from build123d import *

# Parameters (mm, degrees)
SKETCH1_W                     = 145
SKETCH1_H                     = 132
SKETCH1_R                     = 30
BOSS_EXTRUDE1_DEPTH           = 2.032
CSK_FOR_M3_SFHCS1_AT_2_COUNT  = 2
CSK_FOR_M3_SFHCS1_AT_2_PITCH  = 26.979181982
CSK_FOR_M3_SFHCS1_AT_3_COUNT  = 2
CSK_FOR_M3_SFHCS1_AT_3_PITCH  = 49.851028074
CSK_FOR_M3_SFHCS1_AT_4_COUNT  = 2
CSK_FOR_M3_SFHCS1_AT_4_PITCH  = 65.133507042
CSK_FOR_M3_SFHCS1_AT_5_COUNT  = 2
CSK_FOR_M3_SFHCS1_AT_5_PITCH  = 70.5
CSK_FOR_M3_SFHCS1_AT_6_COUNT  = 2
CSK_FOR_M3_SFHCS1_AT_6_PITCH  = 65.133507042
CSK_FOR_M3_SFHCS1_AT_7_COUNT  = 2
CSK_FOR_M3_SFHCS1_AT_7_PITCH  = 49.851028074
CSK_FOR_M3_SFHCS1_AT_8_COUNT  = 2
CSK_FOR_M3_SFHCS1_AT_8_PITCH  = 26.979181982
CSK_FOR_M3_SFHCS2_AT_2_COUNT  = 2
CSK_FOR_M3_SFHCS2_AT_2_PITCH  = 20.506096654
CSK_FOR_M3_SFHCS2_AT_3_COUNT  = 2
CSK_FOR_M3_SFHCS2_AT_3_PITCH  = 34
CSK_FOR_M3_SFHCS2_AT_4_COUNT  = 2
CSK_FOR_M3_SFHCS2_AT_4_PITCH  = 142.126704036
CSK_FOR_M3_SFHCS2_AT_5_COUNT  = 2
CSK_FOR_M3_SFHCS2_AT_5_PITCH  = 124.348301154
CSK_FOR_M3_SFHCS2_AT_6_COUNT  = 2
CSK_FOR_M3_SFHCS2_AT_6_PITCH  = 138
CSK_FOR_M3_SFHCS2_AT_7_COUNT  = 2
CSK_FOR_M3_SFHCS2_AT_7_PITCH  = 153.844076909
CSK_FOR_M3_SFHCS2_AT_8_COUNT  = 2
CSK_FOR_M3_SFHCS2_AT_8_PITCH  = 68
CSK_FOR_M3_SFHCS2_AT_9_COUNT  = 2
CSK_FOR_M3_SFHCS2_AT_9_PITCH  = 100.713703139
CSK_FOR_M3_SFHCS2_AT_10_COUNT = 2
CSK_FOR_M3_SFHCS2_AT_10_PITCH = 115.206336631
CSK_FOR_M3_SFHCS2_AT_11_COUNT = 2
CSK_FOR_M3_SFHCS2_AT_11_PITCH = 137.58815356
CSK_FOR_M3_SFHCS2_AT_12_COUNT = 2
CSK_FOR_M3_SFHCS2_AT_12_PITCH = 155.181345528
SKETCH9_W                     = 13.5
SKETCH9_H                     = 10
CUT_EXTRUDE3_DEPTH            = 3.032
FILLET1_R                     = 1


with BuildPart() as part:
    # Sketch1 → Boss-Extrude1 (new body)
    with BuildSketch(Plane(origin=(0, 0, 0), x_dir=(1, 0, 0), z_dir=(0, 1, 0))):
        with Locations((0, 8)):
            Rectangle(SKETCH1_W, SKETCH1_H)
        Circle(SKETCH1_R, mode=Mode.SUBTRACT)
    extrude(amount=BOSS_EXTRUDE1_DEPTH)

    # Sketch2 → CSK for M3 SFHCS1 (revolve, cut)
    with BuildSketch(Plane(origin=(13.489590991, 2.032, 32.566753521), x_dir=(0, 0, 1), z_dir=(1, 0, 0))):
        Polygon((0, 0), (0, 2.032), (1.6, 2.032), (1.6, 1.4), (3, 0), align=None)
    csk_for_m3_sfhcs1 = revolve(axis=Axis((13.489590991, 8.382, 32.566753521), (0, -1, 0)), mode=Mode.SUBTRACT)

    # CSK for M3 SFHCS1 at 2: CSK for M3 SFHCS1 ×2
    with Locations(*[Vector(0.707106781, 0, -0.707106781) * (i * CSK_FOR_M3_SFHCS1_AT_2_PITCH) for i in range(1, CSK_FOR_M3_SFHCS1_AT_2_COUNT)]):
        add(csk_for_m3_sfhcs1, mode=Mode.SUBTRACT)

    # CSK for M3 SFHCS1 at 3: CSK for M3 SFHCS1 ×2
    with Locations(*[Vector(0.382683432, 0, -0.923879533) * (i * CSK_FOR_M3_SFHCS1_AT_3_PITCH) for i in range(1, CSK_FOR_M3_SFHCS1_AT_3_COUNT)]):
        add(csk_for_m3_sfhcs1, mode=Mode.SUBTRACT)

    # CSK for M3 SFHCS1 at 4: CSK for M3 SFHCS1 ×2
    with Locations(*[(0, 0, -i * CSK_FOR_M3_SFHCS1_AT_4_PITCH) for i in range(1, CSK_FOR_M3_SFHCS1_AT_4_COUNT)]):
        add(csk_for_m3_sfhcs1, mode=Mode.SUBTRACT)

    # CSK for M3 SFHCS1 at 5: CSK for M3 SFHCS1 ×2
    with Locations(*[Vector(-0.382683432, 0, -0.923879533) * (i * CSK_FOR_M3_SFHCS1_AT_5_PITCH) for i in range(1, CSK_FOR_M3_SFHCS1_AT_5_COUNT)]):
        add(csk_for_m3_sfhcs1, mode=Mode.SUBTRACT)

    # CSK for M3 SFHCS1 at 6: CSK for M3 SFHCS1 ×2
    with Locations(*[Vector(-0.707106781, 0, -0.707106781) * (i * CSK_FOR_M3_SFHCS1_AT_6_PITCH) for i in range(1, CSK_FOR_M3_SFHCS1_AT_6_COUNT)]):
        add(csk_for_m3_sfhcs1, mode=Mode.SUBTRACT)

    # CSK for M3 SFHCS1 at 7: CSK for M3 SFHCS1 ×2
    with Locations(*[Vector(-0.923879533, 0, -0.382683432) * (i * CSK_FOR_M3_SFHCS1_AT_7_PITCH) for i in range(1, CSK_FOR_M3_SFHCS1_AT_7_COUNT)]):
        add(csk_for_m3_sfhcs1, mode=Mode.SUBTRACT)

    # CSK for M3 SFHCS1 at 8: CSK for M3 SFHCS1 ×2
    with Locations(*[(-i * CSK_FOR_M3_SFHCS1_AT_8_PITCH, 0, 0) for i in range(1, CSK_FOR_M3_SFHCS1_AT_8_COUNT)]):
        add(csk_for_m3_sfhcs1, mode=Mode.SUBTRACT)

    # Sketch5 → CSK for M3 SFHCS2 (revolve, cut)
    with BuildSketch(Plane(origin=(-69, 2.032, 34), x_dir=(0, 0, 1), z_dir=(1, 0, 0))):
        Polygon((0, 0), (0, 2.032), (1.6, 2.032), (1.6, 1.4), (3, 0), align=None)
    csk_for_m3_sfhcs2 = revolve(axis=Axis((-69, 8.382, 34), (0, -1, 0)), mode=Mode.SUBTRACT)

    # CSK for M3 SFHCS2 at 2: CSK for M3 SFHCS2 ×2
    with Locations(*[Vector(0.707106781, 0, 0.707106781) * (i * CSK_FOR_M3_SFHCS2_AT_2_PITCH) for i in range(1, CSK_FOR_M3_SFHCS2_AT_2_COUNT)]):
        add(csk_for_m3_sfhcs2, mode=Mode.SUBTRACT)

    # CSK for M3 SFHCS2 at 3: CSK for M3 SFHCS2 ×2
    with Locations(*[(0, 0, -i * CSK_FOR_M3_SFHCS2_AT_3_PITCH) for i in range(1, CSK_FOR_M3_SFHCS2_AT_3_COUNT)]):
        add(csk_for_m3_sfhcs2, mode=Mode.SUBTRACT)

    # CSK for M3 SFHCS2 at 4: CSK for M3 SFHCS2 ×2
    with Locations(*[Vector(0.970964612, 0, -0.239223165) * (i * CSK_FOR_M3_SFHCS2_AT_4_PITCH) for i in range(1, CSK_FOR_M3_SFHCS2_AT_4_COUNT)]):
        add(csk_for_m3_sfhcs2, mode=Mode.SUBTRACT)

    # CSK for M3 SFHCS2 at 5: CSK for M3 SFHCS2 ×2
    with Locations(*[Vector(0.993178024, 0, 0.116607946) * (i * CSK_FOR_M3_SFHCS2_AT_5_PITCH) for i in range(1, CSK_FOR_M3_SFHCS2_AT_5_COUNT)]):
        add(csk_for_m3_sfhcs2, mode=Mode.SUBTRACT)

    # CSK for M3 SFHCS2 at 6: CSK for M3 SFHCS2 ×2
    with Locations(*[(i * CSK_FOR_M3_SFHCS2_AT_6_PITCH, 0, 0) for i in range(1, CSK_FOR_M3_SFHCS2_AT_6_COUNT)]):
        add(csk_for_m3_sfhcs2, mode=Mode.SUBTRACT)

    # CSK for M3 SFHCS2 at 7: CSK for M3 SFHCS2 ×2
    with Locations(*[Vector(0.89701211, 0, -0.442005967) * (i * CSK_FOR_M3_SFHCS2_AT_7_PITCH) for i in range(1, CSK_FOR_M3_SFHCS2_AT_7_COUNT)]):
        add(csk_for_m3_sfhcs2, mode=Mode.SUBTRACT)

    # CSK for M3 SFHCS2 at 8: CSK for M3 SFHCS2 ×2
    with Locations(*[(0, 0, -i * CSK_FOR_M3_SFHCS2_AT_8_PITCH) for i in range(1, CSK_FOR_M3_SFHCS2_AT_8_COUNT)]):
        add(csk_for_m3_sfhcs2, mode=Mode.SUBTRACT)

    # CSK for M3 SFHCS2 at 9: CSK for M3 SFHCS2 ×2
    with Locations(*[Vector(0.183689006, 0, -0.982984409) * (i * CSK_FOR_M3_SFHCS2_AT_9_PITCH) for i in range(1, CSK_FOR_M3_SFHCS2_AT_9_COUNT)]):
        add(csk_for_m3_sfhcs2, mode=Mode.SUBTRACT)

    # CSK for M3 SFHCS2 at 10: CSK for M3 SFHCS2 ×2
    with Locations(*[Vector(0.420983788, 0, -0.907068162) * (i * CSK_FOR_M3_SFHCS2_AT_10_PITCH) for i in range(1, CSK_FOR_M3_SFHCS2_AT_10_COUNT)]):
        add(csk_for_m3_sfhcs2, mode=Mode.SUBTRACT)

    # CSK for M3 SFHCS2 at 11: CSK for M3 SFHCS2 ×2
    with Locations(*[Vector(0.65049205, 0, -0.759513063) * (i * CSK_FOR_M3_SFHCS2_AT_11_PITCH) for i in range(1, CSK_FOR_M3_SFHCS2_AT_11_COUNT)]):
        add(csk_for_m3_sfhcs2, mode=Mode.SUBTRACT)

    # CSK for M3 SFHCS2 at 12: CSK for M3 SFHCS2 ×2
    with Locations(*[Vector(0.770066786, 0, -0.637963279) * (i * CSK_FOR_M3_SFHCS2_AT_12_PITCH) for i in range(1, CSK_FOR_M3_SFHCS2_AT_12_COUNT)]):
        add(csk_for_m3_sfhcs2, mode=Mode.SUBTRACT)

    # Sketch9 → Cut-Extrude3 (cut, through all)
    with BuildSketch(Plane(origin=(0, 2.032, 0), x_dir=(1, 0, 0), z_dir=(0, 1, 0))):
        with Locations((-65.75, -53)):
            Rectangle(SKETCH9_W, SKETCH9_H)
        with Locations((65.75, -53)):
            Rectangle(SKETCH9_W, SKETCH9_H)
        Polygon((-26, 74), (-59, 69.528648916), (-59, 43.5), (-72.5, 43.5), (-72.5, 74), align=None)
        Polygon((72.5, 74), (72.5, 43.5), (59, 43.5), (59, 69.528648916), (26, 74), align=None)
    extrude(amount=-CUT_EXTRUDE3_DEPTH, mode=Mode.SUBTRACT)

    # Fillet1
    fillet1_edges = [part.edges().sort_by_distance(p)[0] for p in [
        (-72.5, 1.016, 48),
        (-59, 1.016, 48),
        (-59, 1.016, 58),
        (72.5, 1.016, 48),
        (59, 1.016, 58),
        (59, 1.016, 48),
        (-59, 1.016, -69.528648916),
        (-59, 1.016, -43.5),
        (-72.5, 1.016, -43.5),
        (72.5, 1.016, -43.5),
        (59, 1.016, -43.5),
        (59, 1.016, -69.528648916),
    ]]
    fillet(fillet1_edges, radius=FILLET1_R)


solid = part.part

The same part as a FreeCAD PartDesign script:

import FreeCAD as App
import Part
import Sketcher
Q = App.Units.Quantity


def edges_at(feature, points):
    """Names of the edges that pass closest to the given points."""
    edges = feature.Shape.Edges
    near = lambda p: min(range(len(edges)), key=lambda i: edges[i].distToShape(Part.Vertex(*p))[0])
    return sorted({f"Edge{near(p) + 1}" for p in points})


def add_polygon(sketch, points):
    """Adds a closed chain of lines whose ends are joined by coincident constraints."""
    first, n = sketch.GeometryCount, len(points)
    for a, b in zip(points, points[1:] + points[:1]):
        sketch.addGeometry(Part.LineSegment(App.Vector(*a, 0), App.Vector(*b, 0)), False)
    for i in range(n):
        sketch.addConstraint(Sketcher.Constraint("Coincident", first + i, 2, first + (i + 1) % n, 1))

doc = App.newDocument("Part")
body = doc.addObject("PartDesign::Body", "Body")

# Sketch on XZ plane
sketch1 = doc.addObject("Sketcher::SketchObject", "Sketch")
body.addObject(sketch1)
sketch1.AttachmentSupport = (doc.XZ_Plane, [""])
sketch1.MapMode = "FlatFace"
add_polygon(sketch1, [(-72, -74), (-72, 58), (72, 58), (72, -74)])  # lines 0-3
sketch1.addGeometry(Part.Circle(App.Vector(0, 0, 0), App.Vector(0, 0, 1), 30), False)  # 4
sketch1.addConstraint([
    Sketcher.Constraint("Vertical", 0),
    Sketcher.Constraint("Horizontal", 1),
    Sketcher.Constraint("Vertical", 2),
    Sketcher.Constraint("Horizontal", 3),
    Sketcher.Constraint("Coincident", 4, 3, -1, 1),
    Sketcher.Constraint("Diameter", 4, 60.0),
    Sketcher.Constraint("DistanceX", 1, 1, 1, 2, 145.0),
    Sketcher.Constraint("DistanceY", 0, 1, 0, 2, 132.0),
    Sketcher.Constraint("DistanceY", -1, 1, 0, 2, 58.0),
    Sketcher.Constraint("DistanceX", 0, 2, -1, 1, 72.5),
])
pad1 = doc.addObject("PartDesign::Pad", "Pad")
body.addObject(pad1)
pad1.Profile = sketch1
pad1.Length = 2.032
pad1.Reversed = True

# Sketch on YZ plane
sketch2 = doc.addObject("Sketcher::SketchObject", "Sketch001")
body.addObject(sketch2)
sketch2.AttachmentSupport = (doc.YZ_Plane, [""])
sketch2.MapMode = "FlatFace"
sketch2.AttachmentOffset = App.Placement(App.Vector(0, 0, 13.489591), App.Rotation())
add_polygon(sketch2, [(0, 32.6), (2, 32.6), (2, 35.6), (0.6, 34.2), (0, 34.2)])  # lines 0-4
sketch2.addGeometry(Part.LineSegment(App.Vector(2, 32.6, 0), App.Vector(0, 32.6, 0)), True)  # axis
sketch2.addConstraint([
    Sketcher.Constraint("Horizontal", 0),
    Sketcher.Constraint("Vertical", 1),
    Sketcher.Constraint("Horizontal", 3),
    Sketcher.Constraint("Vertical", 4),
    Sketcher.Constraint("Horizontal", 5),
    Sketcher.Constraint("Coincident", 5, 1, 0, 2),
    Sketcher.Constraint("PointOnObject", 3, 2, -2),
    Sketcher.Constraint("PointOnObject", 5, 2, -2),
    Sketcher.Constraint("DistanceY", 1, 1, 1, 2, 3.0),
    Sketcher.Constraint("Angle", 2, Q("-135 deg")),
    Sketcher.Constraint("DistanceY", 4, 2, 4, 1, 1.6),
    Sketcher.Constraint("DistanceX", 0, 1, 0, 2, 2.032),
    Sketcher.Constraint("DistanceY", -1, 1, 0, 2, 32.566754),
])
groove = doc.addObject("PartDesign::Groove", "Groove")
body.addObject(groove)
groove.Profile = sketch2
groove.ReferenceAxis = (sketch2, ["Axis0"])
groove.Angle = 360
doc.recompute()

datumline = doc.addObject("PartDesign::Line", "DatumLine")
body.addObject(datumline)
datumline.Placement = App.Placement(App.Vector(0, 0, 0), App.Rotation(App.Vector(0, 0, 1), App.Vector(0.707106781, 0, -0.707106781)))
linearpattern = doc.addObject("PartDesign::LinearPattern", "LinearPattern")
body.addObject(linearpattern)
linearpattern.Originals = [groove]
linearpattern.Direction = (datumline, [""])
linearpattern.Mode = "offset"
linearpattern.Offset = 26.979182
linearpattern.Occurrences = 2
body.Tip = linearpattern
doc.recompute()

datumline2 = doc.addObject("PartDesign::Line", "DatumLine001")
body.addObject(datumline2)
datumline2.Placement = App.Placement(App.Vector(0, 0, 0), App.Rotation(App.Vector(0, 0, 1), App.Vector(0.382683432, 0, -0.923879533)))
linearpattern2 = doc.addObject("PartDesign::LinearPattern", "LinearPattern001")
body.addObject(linearpattern2)
linearpattern2.Originals = [groove]
linearpattern2.Direction = (datumline2, [""])
linearpattern2.Mode = "offset"
linearpattern2.Offset = 49.851028
linearpattern2.Occurrences = 2
body.Tip = linearpattern2
doc.recompute()

linearpattern3 = doc.addObject("PartDesign::LinearPattern", "LinearPattern002")
body.addObject(linearpattern3)
linearpattern3.Originals = [groove]
linearpattern3.Direction = (doc.Z_Axis, [""])
linearpattern3.Mode = "offset"
linearpattern3.Offset = 65.133507
linearpattern3.Occurrences = 2
linearpattern3.Reversed = True
body.Tip = linearpattern3
doc.recompute()

datumline3 = doc.addObject("PartDesign::Line", "DatumLine002")
body.addObject(datumline3)
datumline3.Placement = App.Placement(App.Vector(0, 0, 0), App.Rotation(App.Vector(0, 0, 1), App.Vector(-0.382683432, 0, -0.923879533)))
linearpattern4 = doc.addObject("PartDesign::LinearPattern", "LinearPattern003")
body.addObject(linearpattern4)
linearpattern4.Originals = [groove]
linearpattern4.Direction = (datumline3, [""])
linearpattern4.Mode = "offset"
linearpattern4.Offset = 70.5
linearpattern4.Occurrences = 2
body.Tip = linearpattern4
doc.recompute()

datumline4 = doc.addObject("PartDesign::Line", "DatumLine003")
body.addObject(datumline4)
datumline4.Placement = App.Placement(App.Vector(0, 0, 0), App.Rotation(App.Vector(0, 0, 1), App.Vector(-0.707106781, 0, -0.707106781)))
linearpattern5 = doc.addObject("PartDesign::LinearPattern", "LinearPattern004")
body.addObject(linearpattern5)
linearpattern5.Originals = [groove]
linearpattern5.Direction = (datumline4, [""])
linearpattern5.Mode = "offset"
linearpattern5.Offset = 65.133507
linearpattern5.Occurrences = 2
body.Tip = linearpattern5
doc.recompute()

datumline5 = doc.addObject("PartDesign::Line", "DatumLine004")
body.addObject(datumline5)
datumline5.Placement = App.Placement(App.Vector(0, 0, 0), App.Rotation(App.Vector(0, 0, 1), App.Vector(-0.923879533, 0, -0.382683432)))
linearpattern6 = doc.addObject("PartDesign::LinearPattern", "LinearPattern005")
body.addObject(linearpattern6)
linearpattern6.Originals = [groove]
linearpattern6.Direction = (datumline5, [""])
linearpattern6.Mode = "offset"
linearpattern6.Offset = 49.851028
linearpattern6.Occurrences = 2
body.Tip = linearpattern6
doc.recompute()

linearpattern7 = doc.addObject("PartDesign::LinearPattern", "LinearPattern006")
body.addObject(linearpattern7)
linearpattern7.Originals = [groove]
linearpattern7.Direction = (doc.X_Axis, [""])
linearpattern7.Mode = "offset"
linearpattern7.Offset = 26.979182
linearpattern7.Occurrences = 2
linearpattern7.Reversed = True
body.Tip = linearpattern7

# Sketch on YZ plane
sketch3 = doc.addObject("Sketcher::SketchObject", "Sketch002")
body.addObject(sketch3)
sketch3.AttachmentSupport = (doc.YZ_Plane, [""])
sketch3.MapMode = "FlatFace"
sketch3.AttachmentOffset = App.Placement(App.Vector(0, 0, -69), App.Rotation())
add_polygon(sketch3, [(0, 34), (2, 34), (2, 37), (0.6, 35.6), (0, 35.6)])  # lines 0-4
sketch3.addGeometry(Part.LineSegment(App.Vector(2, 34, 0), App.Vector(0, 34, 0)), True)  # axis
sketch3.addConstraint([
    Sketcher.Constraint("Horizontal", 0),
    Sketcher.Constraint("Vertical", 1),
    Sketcher.Constraint("Horizontal", 3),
    Sketcher.Constraint("Vertical", 4),
    Sketcher.Constraint("Horizontal", 5),
    Sketcher.Constraint("Coincident", 5, 1, 0, 2),
    Sketcher.Constraint("PointOnObject", 3, 2, -2),
    Sketcher.Constraint("PointOnObject", 5, 2, -2),
    Sketcher.Constraint("DistanceY", 1, 1, 1, 2, 3.0),
    Sketcher.Constraint("Angle", 2, Q("-135 deg")),
    Sketcher.Constraint("DistanceY", 4, 2, 4, 1, 1.6),
    Sketcher.Constraint("DistanceY", -1, 1, 0, 2, 34.0),
    Sketcher.Constraint("DistanceX", 0, 1, 0, 2, 2.032),
])
groove2 = doc.addObject("PartDesign::Groove", "Groove001")
body.addObject(groove2)
groove2.Profile = sketch3
groove2.ReferenceAxis = (sketch3, ["Axis0"])
groove2.Angle = 360
doc.recompute()

datumline6 = doc.addObject("PartDesign::Line", "DatumLine005")
body.addObject(datumline6)
datumline6.Placement = App.Placement(App.Vector(0, 0, 0), App.Rotation(App.Vector(0, 0, 1), App.Vector(0.707106781, 0, 0.707106781)))
linearpattern8 = doc.addObject("PartDesign::LinearPattern", "LinearPattern007")
body.addObject(linearpattern8)
linearpattern8.Originals = [groove2]
linearpattern8.Direction = (datumline6, [""])
linearpattern8.Mode = "offset"
linearpattern8.Offset = 20.506097
linearpattern8.Occurrences = 2
body.Tip = linearpattern8
doc.recompute()

linearpattern9 = doc.addObject("PartDesign::LinearPattern", "LinearPattern008")
body.addObject(linearpattern9)
linearpattern9.Originals = [groove2]
linearpattern9.Direction = (doc.Z_Axis, [""])
linearpattern9.Mode = "offset"
linearpattern9.Offset = 34
linearpattern9.Occurrences = 2
linearpattern9.Reversed = True
body.Tip = linearpattern9
doc.recompute()

datumline7 = doc.addObject("PartDesign::Line", "DatumLine006")
body.addObject(datumline7)
datumline7.Placement = App.Placement(App.Vector(0, 0, 0), App.Rotation(App.Vector(0, 0, 1), App.Vector(0.970964612, 0, -0.239223165)))
linearpattern10 = doc.addObject("PartDesign::LinearPattern", "LinearPattern009")
body.addObject(linearpattern10)
linearpattern10.Originals = [groove2]
linearpattern10.Direction = (datumline7, [""])
linearpattern10.Mode = "offset"
linearpattern10.Offset = 142.126704
linearpattern10.Occurrences = 2
body.Tip = linearpattern10
doc.recompute()

datumline8 = doc.addObject("PartDesign::Line", "DatumLine007")
body.addObject(datumline8)
datumline8.Placement = App.Placement(App.Vector(0, 0, 0), App.Rotation(App.Vector(0, 0, 1), App.Vector(0.993178024, 0, 0.116607946)))
linearpattern11 = doc.addObject("PartDesign::LinearPattern", "LinearPattern010")
body.addObject(linearpattern11)
linearpattern11.Originals = [groove2]
linearpattern11.Direction = (datumline8, [""])
linearpattern11.Mode = "offset"
linearpattern11.Offset = 124.348301
linearpattern11.Occurrences = 2
body.Tip = linearpattern11
doc.recompute()

linearpattern12 = doc.addObject("PartDesign::LinearPattern", "LinearPattern011")
body.addObject(linearpattern12)
linearpattern12.Originals = [groove2]
linearpattern12.Direction = (doc.X_Axis, [""])
linearpattern12.Mode = "offset"
linearpattern12.Offset = 138
linearpattern12.Occurrences = 2
body.Tip = linearpattern12
doc.recompute()

datumline9 = doc.addObject("PartDesign::Line", "DatumLine008")
body.addObject(datumline9)
datumline9.Placement = App.Placement(App.Vector(0, 0, 0), App.Rotation(App.Vector(0, 0, 1), App.Vector(0.89701211, 0, -0.442005967)))
linearpattern13 = doc.addObject("PartDesign::LinearPattern", "LinearPattern012")
body.addObject(linearpattern13)
linearpattern13.Originals = [groove2]
linearpattern13.Direction = (datumline9, [""])
linearpattern13.Mode = "offset"
linearpattern13.Offset = 153.844077
linearpattern13.Occurrences = 2
body.Tip = linearpattern13
doc.recompute()

linearpattern14 = doc.addObject("PartDesign::LinearPattern", "LinearPattern013")
body.addObject(linearpattern14)
linearpattern14.Originals = [groove2]
linearpattern14.Direction = (doc.Z_Axis, [""])
linearpattern14.Mode = "offset"
linearpattern14.Offset = 68
linearpattern14.Occurrences = 2
linearpattern14.Reversed = True
body.Tip = linearpattern14
doc.recompute()

datumline10 = doc.addObject("PartDesign::Line", "DatumLine009")
body.addObject(datumline10)
datumline10.Placement = App.Placement(App.Vector(0, 0, 0), App.Rotation(App.Vector(0, 0, 1), App.Vector(0.183689006, 0, -0.982984409)))
linearpattern15 = doc.addObject("PartDesign::LinearPattern", "LinearPattern014")
body.addObject(linearpattern15)
linearpattern15.Originals = [groove2]
linearpattern15.Direction = (datumline10, [""])
linearpattern15.Mode = "offset"
linearpattern15.Offset = 100.713703
linearpattern15.Occurrences = 2
body.Tip = linearpattern15
doc.recompute()

datumline11 = doc.addObject("PartDesign::Line", "DatumLine010")
body.addObject(datumline11)
datumline11.Placement = App.Placement(App.Vector(0, 0, 0), App.Rotation(App.Vector(0, 0, 1), App.Vector(0.420983788, 0, -0.907068162)))
linearpattern16 = doc.addObject("PartDesign::LinearPattern", "LinearPattern015")
body.addObject(linearpattern16)
linearpattern16.Originals = [groove2]
linearpattern16.Direction = (datumline11, [""])
linearpattern16.Mode = "offset"
linearpattern16.Offset = 115.206337
linearpattern16.Occurrences = 2
body.Tip = linearpattern16
doc.recompute()

datumline12 = doc.addObject("PartDesign::Line", "DatumLine011")
body.addObject(datumline12)
datumline12.Placement = App.Placement(App.Vector(0, 0, 0), App.Rotation(App.Vector(0, 0, 1), App.Vector(0.65049205, 0, -0.759513063)))
linearpattern17 = doc.addObject("PartDesign::LinearPattern", "LinearPattern016")
body.addObject(linearpattern17)
linearpattern17.Originals = [groove2]
linearpattern17.Direction = (datumline12, [""])
linearpattern17.Mode = "offset"
linearpattern17.Offset = 137.588154
linearpattern17.Occurrences = 2
body.Tip = linearpattern17
doc.recompute()

datumline13 = doc.addObject("PartDesign::Line", "DatumLine012")
body.addObject(datumline13)
datumline13.Placement = App.Placement(App.Vector(0, 0, 0), App.Rotation(App.Vector(0, 0, 1), App.Vector(0.770066786, 0, -0.637963279)))
linearpattern18 = doc.addObject("PartDesign::LinearPattern", "LinearPattern017")
body.addObject(linearpattern18)
linearpattern18.Originals = [groove2]
linearpattern18.Direction = (datumline13, [""])
linearpattern18.Mode = "offset"
linearpattern18.Offset = 155.181346
linearpattern18.Occurrences = 2
body.Tip = linearpattern18

# Sketch on XZ plane
sketch4 = doc.addObject("Sketcher::SketchObject", "Sketch003")
body.addObject(sketch4)
sketch4.AttachmentSupport = (doc.XZ_Plane, [""])
sketch4.MapMode = "FlatFace"
sketch4.AttachmentOffset = App.Placement(App.Vector(0, 0, -2.032), App.Rotation())
add_polygon(sketch4, [(-72, 48), (-72, 58), (-59, 58), (-59, 48)])  # lines 0-3
add_polygon(sketch4, [(59, 48), (59, 58), (72, 58), (72, 48)])  # lines 4-7
add_polygon(sketch4, [(-59, -70), (-26, -74), (-72, -74), (-72, -44), (-59, -44)])  # lines 8-12
add_polygon(sketch4, [(72, -44), (72, -74), (26, -74), (59, -70), (59, -44)])  # lines 13-17
sketch4.addConstraint([
    Sketcher.Constraint("Vertical", 0),
    Sketcher.Constraint("Horizontal", 1),
    Sketcher.Constraint("Vertical", 2),
    Sketcher.Constraint("Horizontal", 3),
    Sketcher.Constraint("Vertical", 4),
    Sketcher.Constraint("Horizontal", 5),
    Sketcher.Constraint("Vertical", 6),
    Sketcher.Constraint("Horizontal", 7),
    Sketcher.Constraint("Horizontal", 9),
    Sketcher.Constraint("Vertical", 10),
    Sketcher.Constraint("Horizontal", 11),
    Sketcher.Constraint("Vertical", 12),
    Sketcher.Constraint("Vertical", 13),
    Sketcher.Constraint("Horizontal", 14),
    Sketcher.Constraint("Vertical", 16),
    Sketcher.Constraint("Horizontal", 17),
    Sketcher.Constraint("Symmetric", 1, 2, 4, 2, -2),
    Sketcher.Constraint("Symmetric", 3, 2, 6, 2, -2),
    Sketcher.Constraint("Symmetric", 9, 2, 13, 2, -2),
    Sketcher.Constraint("Symmetric", 12, 2, 15, 2, -2),
    Sketcher.Constraint("Horizontal", 11, 2, 16, 2),
    Sketcher.Constraint("Vertical", 3, 2, 9, 2),
    Sketcher.Constraint("Vertical", 2, 2, 11, 2),
    Sketcher.Constraint("Equal", 9, 14),
    Sketcher.Constraint("DistanceY", 0, 1, 0, 2, 10.0),
    Sketcher.Constraint("DistanceX", 1, 1, 1, 2, 13.5),
    Sketcher.Constraint("DistanceX", 9, 2, 9, 1, 46.5),
    Sketcher.Constraint("DistanceY", 10, 1, 10, 2, 30.5),
    Sketcher.Constraint("DistanceY", -1, 1, 0, 2, 58.0),
    Sketcher.Constraint("DistanceX", 1, 2, -1, 1, 59.0),
    Sketcher.Constraint("DistanceY", 8, 2, -1, 1, 74.0),
    Sketcher.Constraint("DistanceY", 12, 2, 12, 1, 26.028649),
])
pocket1 = doc.addObject("PartDesign::Pocket", "Pocket")
body.addObject(pocket1)
pocket1.Profile = sketch4
pocket1.Type = "ThroughAll"
pocket1.Reversed = True
doc.recompute()

fillet = doc.addObject("PartDesign::Fillet", "Fillet")
body.addObject(fillet)
fillet.Base = (pocket1, edges_at(pocket1, [
    (-72.5, 1.016, 48),
    (-59, 1.016, 48),
    (-59, 1.016, 58),
    (72.5, 1.016, 48),
    (59, 1.016, 58),
    (59, 1.016, 48),
    (-59, 1.016, -69.529),
    (-59, 1.016, -43.5),
    (-72.5, 1.016, -43.5),
    (72.5, 1.016, -43.5),
    (59, 1.016, -43.5),
    (59, 1.016, -69.529),
]))
fillet.Radius = 1

doc.recompute()
